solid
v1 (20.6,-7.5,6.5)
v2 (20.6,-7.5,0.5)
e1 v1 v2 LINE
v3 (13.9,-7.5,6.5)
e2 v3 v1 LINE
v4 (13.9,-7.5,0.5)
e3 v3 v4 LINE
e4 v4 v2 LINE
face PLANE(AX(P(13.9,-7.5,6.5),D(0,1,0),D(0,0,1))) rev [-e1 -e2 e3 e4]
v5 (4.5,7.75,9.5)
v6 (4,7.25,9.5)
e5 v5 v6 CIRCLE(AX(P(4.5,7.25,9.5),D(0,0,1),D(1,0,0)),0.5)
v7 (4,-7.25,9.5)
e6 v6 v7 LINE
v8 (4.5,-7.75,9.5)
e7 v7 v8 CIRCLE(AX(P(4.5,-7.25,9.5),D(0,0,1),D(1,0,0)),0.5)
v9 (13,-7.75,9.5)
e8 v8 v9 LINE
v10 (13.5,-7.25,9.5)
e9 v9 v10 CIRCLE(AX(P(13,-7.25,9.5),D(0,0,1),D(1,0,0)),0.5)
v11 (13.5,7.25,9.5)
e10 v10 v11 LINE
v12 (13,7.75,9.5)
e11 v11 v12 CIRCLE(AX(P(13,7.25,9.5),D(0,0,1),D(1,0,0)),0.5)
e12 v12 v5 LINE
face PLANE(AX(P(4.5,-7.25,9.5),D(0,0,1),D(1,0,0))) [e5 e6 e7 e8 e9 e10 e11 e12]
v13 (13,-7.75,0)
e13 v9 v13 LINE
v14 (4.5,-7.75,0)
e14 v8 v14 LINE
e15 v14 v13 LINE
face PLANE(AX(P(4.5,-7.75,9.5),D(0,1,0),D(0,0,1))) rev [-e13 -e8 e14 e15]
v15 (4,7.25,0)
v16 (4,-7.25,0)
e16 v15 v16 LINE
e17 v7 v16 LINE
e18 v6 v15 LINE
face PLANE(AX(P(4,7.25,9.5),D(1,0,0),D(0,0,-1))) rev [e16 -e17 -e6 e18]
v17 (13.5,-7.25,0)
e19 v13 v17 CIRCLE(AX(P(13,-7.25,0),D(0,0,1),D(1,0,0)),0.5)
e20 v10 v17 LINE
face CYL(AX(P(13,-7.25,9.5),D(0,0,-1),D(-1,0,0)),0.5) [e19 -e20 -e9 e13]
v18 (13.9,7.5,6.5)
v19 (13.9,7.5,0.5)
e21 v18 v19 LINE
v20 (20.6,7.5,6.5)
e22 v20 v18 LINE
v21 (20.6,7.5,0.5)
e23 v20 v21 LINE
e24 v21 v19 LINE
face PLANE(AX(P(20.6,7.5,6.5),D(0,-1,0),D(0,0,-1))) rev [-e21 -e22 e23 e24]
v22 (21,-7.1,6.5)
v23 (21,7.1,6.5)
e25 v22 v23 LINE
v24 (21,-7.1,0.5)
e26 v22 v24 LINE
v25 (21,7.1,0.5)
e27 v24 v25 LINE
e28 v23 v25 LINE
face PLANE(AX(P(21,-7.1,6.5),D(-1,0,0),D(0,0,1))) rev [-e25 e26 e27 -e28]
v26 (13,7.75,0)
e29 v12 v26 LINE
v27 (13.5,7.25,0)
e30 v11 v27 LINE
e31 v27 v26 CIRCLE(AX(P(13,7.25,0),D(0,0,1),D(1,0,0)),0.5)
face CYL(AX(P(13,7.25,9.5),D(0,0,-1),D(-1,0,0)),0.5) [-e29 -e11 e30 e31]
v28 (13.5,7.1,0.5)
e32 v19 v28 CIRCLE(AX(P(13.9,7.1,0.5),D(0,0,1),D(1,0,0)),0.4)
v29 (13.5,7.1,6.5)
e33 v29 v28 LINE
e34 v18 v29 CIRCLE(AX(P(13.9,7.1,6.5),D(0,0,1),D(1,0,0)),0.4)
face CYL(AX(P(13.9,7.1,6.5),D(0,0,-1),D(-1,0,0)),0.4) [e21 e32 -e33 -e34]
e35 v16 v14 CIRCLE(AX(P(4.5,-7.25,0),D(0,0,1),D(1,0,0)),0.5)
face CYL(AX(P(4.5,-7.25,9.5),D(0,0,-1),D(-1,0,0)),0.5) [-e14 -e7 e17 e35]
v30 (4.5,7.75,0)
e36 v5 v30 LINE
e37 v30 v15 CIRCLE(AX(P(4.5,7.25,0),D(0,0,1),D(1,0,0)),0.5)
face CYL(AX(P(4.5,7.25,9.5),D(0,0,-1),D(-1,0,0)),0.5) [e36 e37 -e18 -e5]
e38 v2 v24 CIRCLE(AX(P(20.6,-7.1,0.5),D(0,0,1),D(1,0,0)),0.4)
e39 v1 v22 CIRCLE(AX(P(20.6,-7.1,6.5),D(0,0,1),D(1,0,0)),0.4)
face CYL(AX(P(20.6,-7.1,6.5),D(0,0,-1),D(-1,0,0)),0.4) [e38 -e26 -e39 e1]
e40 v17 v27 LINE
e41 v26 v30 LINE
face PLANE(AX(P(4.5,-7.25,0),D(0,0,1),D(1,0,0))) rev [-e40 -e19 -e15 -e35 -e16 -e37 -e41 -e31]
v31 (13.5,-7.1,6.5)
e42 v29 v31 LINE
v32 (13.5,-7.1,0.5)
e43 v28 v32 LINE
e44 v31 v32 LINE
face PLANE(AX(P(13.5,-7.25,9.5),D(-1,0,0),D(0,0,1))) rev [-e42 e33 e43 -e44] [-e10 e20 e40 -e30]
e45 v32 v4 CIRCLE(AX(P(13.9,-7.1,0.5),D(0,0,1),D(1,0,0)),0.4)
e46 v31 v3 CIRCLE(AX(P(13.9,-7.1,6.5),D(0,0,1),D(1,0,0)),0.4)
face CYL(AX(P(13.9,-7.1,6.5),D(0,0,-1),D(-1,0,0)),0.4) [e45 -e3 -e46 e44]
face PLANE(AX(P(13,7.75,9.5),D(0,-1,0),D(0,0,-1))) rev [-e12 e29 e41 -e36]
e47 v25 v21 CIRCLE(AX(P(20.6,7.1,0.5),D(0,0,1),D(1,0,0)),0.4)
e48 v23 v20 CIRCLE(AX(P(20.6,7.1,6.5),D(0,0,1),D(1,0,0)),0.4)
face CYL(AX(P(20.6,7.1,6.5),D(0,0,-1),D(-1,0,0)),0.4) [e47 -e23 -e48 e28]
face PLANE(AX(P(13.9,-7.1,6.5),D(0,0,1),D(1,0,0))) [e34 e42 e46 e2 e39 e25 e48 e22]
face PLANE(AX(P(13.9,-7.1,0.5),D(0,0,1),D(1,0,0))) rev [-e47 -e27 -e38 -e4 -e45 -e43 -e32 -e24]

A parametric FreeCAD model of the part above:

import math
import FreeCAD as App
import Part
import Sketcher

doc = App.newDocument("Part")
body = doc.addObject("PartDesign::Body", "Body")

sketch1 = body.newObject("Sketcher::SketchObject", "Sketch")
sketch1.AttachmentSupport = (doc.getObject("XY_Plane"), [""])
sketch1.MapMode = "FlatFace"
sketch1.addGeometry([
    Part.LineSegment(App.Vector(4.5, -7.75, 0), App.Vector(13, -7.75, 0)),
    Part.ArcOfCircle(Part.Circle(App.Vector(13, -7.25, 0), App.Vector(0, 0, 1), 0.5), math.radians(-90), math.radians(0)),
    Part.LineSegment(App.Vector(13.5, -7.25, 0), App.Vector(13.5, 7.25, 0)),
    Part.ArcOfCircle(Part.Circle(App.Vector(13, 7.25, 0), App.Vector(0, 0, 1), 0.5), math.radians(0), math.radians(90)),
    Part.LineSegment(App.Vector(13, 7.75, 0), App.Vector(4.5, 7.75, 0)),
    Part.ArcOfCircle(Part.Circle(App.Vector(4.5, 7.25, 0), App.Vector(0, 0, 1), 0.5), math.radians(90), math.radians(180)),
    Part.LineSegment(App.Vector(4, 7.25, 0), App.Vector(4, -7.25, 0)),
    Part.ArcOfCircle(Part.Circle(App.Vector(4.5, -7.25, 0), App.Vector(0, 0, 1), 0.5), math.radians(180), math.radians(270)),
], False)
sketch1.addConstraint([
    Sketcher.Constraint("Tangent", 0, 2, 1, 1),
    Sketcher.Constraint("Tangent", 1, 2, 2, 1),
    Sketcher.Constraint("Tangent", 2, 2, 3, 1),
    Sketcher.Constraint("Tangent", 3, 2, 4, 1),
    Sketcher.Constraint("Tangent", 4, 2, 5, 1),
    Sketcher.Constraint("Tangent", 5, 2, 6, 1),
    Sketcher.Constraint("Tangent", 6, 2, 7, 1),
    Sketcher.Constraint("Tangent", 7, 2, 0, 1),
    Sketcher.Constraint("Horizontal", 0),
    Sketcher.Constraint("Vertical", 2),
    Sketcher.Constraint("Horizontal", 4),
    Sketcher.Constraint("Vertical", 6),
    Sketcher.Constraint("Equal", 1, 3),
    Sketcher.Constraint("Equal", 3, 5),
    Sketcher.Constraint("Equal", 5, 7),
    Sketcher.Constraint("Radius", 1, 0.5),
    Sketcher.Constraint("DistanceX", 0, 1, 0, 2, 8.5),
    Sketcher.Constraint("DistanceY", 2, 1, 2, 2, 14.5),
    Sketcher.Constraint("DistanceX", -1, 1, 1, 3, 13.0),
    Sketcher.Constraint("DistanceY", 1, 3, -1, 1, 7.25),
])
pad1 = body.newObject("PartDesign::Pad", "Pad")
pad1.Profile = sketch1
pad1.Length = 9.5

sketch2 = body.newObject("Sketcher::SketchObject", "Sketch001")
sketch2.AttachmentSupport = (doc.getObject("XY_Plane"), [""])
sketch2.MapMode = "FlatFace"
sketch2.AttachmentOffset = App.Placement(App.Vector(0, 0, 0.5), App.Rotation())
sketch2.addGeometry([
    Part.LineSegment(App.Vector(13.9, -7.5, 0), App.Vector(20.6, -7.5, 0)),
    Part.ArcOfCircle(Part.Circle(App.Vector(20.6, -7.1, 0), App.Vector(0, 0, 1), 0.4), math.radians(-90), math.radians(0)),
    Part.LineSegment(App.Vector(21, -7.1, 0), App.Vector(21, 7.1, 0)),
    Part.ArcOfCircle(Part.Circle(App.Vector(20.6, 7.1, 0), App.Vector(0, 0, 1), 0.4), math.radians(0), math.radians(90)),
    Part.LineSegment(App.Vector(20.6, 7.5, 0), App.Vector(13.9, 7.5, 0)),
    Part.ArcOfCircle(Part.Circle(App.Vector(13.9, 7.1, 0), App.Vector(0, 0, 1), 0.4), math.radians(90), math.radians(180)),
    Part.LineSegment(App.Vector(13.5, 7.1, 0), App.Vector(13.5, -7.1, 0)),
    Part.ArcOfCircle(Part.Circle(App.Vector(13.9, -7.1, 0), App.Vector(0, 0, 1), 0.4), math.radians(-180), math.radians(-90)),
], False)
sketch2.addConstraint([
    Sketcher.Constraint("Tangent", 0, 2, 1, 1),
    Sketcher.Constraint("Tangent", 1, 2, 2, 1),
    Sketcher.Constraint("Tangent", 2, 2, 3, 1),
    Sketcher.Constraint("Tangent", 3, 2, 4, 1),
    Sketcher.Constraint("Tangent", 4, 2, 5, 1),
    Sketcher.Constraint("Tangent", 5, 2, 6, 1),
    Sketcher.Constraint("Tangent", 6, 2, 7, 1),
    Sketcher.Constraint("Tangent", 7, 2, 0, 1),
    Sketcher.Constraint("Horizontal", 0),
    Sketcher.Constraint("Vertical", 2),
    Sketcher.Constraint("Horizontal", 4),
    Sketcher.Constraint("Vertical", 6),
    Sketcher.Constraint("Equal", 1, 3),
    Sketcher.Constraint("Equal", 3, 5),
    Sketcher.Constraint("Equal", 5, 7),
    Sketcher.Constraint("Radius", 1, 0.4),
    Sketcher.Constraint("DistanceX", 0, 1, 0, 2, 6.7),
    Sketcher.Constraint("DistanceY", 2, 1, 2, 2, 14.2),
    Sketcher.Constraint("DistanceX", -1, 1, 1, 2, 21.0),
    Sketcher.Constraint("DistanceY", 1, 3, -1, 1, 7.1),
])
pad2 = body.newObject("PartDesign::Pad", "Pad001")
pad2.Profile = sketch2
pad2.Length = 6

doc.recompute()
